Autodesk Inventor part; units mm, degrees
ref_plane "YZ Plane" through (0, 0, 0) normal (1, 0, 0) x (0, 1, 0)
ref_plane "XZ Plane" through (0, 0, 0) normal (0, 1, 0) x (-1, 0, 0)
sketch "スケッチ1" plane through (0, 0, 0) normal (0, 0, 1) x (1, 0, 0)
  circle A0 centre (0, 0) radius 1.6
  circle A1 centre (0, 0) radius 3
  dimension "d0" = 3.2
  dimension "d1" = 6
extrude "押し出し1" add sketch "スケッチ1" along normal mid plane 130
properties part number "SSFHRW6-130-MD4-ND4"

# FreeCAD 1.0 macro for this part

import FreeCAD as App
import Part
import Sketcher

V = App.Vector
Q = App.Units.Quantity

doc = App.newDocument("Part")
body = doc.addObject("PartDesign::Body", "Body")

# Sketch on XY plane
sketch1 = body.newObject("Sketcher::SketchObject", "Sketch")
sketch1.AttachmentSupport = (doc.getObject("XY_Plane"), [""])
sketch1.MapMode = "FlatFace"
sketch1.addGeometry([
    Part.Circle(V(0, 0, 0), V(0, 0, 1), 3),
    Part.Circle(V(0, 0, 0), V(0, 0, 1), 1.6),
], False)
sketch1.addConstraint([
    Sketcher.Constraint("Coincident", 0, 3, -1, 1),
    Sketcher.Constraint("Coincident", 1, 3, -1, 1),
    Sketcher.Constraint("Diameter", 0, Q("6 mm")),
    Sketcher.Constraint("Diameter", 1, Q("3.2 mm")),
])
pad1 = body.newObject("PartDesign::Pad", "Pad")
pad1.Profile = sketch1
pad1.Length = 130
pad1.Midplane = True

doc.recompute()
